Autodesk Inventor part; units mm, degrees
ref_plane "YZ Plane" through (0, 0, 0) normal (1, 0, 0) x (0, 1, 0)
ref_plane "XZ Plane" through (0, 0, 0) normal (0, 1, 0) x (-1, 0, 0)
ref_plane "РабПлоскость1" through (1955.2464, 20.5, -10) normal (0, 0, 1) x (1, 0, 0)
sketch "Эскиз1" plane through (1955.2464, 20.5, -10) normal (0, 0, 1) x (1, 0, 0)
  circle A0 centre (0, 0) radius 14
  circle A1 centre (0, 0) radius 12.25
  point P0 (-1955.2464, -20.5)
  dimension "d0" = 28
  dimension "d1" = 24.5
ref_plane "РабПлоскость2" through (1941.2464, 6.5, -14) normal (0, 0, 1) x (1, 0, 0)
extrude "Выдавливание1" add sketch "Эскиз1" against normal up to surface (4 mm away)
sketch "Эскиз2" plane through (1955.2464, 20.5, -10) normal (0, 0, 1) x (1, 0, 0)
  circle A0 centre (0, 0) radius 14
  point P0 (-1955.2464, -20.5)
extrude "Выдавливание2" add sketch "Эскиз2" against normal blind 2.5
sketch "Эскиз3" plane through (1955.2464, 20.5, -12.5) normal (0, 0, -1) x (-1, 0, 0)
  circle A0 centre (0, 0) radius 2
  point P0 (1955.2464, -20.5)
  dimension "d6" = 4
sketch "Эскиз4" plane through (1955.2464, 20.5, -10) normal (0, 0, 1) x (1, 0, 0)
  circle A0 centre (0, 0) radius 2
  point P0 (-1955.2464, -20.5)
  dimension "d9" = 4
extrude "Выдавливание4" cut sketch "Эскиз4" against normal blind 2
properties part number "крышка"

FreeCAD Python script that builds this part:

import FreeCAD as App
import Part
import Sketcher

V = App.Vector
Q = App.Units.Quantity

doc = App.newDocument("Part")
params = doc.addObject("Spreadsheet::Sheet", "Params")
for row, (alias, value) in enumerate([
    ("sketch1_diameter", "28 mm"),
    ("sketch1_diameter2", "24.5 mm"),
    ("pad1_length", "4 mm"),
    ("sketch2_diameter", "28 mm"),
    ("pad2_length", "2.5 mm"),
    ("sketch3_diameter", "4 mm"),
    ("pocket1_length", "2 mm"),
], start=1):
    params.set(f"A{row}", alias)
    params.set(f"B{row}", "=" + value)
    params.setAlias(f"B{row}", alias)

body = doc.addObject("PartDesign::Body", "Body")

sketch1 = doc.addObject("Sketcher::SketchObject", "Sketch")
body.addObject(sketch1)
sketch1.AttachmentSupport = (doc.XY_Plane, [""])
sketch1.MapMode = "FlatFace"
sketch1.AttachmentOffset = App.Placement(V(0, 0, -10), App.Rotation())
sketch1.addGeometry([
    Part.Circle(V(1955.2464, 20.5, 0), V(0, 0, 1), 14),
    Part.Circle(V(1955.2464, 20.5, 0), V(0, 0, 1), 12.25),
], False)
sketch1.addConstraint([
    Sketcher.Constraint("Coincident", 1, 3, 0, 3),
    Sketcher.Constraint("Diameter", 0, Q("28 mm")),
    Sketcher.Constraint("Diameter", 1, Q("24.5 mm")),
    Sketcher.Constraint("DistanceY", -1, 1, 0, 3, Q("20.5 mm")),
    Sketcher.Constraint("DistanceX", -1, 1, 0, 3, Q("1955.2464 mm")),
])
sketch1.setExpression("Constraints[1]", "Params.sketch1_diameter")
sketch1.setExpression("Constraints[2]", "Params.sketch1_diameter2")
pad1 = doc.addObject("PartDesign::Pad", "Pad")
body.addObject(pad1)
pad1.Profile = sketch1
pad1.setExpression("Length", "Params.pad1_length")
pad1.Reversed = True

sketch2 = doc.addObject("Sketcher::SketchObject", "Sketch001")
body.addObject(sketch2)
sketch2.AttachmentSupport = (doc.XY_Plane, [""])
sketch2.MapMode = "FlatFace"
sketch2.AttachmentOffset = App.Placement(V(0, 0, -10), App.Rotation())
sketch2.addGeometry(Part.Circle(V(1955.2464, 20.5, 0), V(0, 0, 1), 14), False)
sketch2.addConstraint([
    Sketcher.Constraint("Diameter", 0, Q("28 mm")),
    Sketcher.Constraint("DistanceY", -1, 1, 0, 3, Q("20.5 mm")),
    Sketcher.Constraint("DistanceX", -1, 1, 0, 3, Q("1955.2464 mm")),
])
sketch2.setExpression("Constraints[0]", "Params.sketch2_diameter")
pad2 = doc.addObject("PartDesign::Pad", "Pad001")
body.addObject(pad2)
pad2.Profile = sketch2
pad2.setExpression("Length", "Params.pad2_length")
pad2.Reversed = True

sketch3 = doc.addObject("Sketcher::SketchObject", "Sketch002")
body.addObject(sketch3)
sketch3.AttachmentSupport = (doc.XY_Plane, [""])
sketch3.MapMode = "FlatFace"
sketch3.AttachmentOffset = App.Placement(V(0, 0, -10), App.Rotation())
sketch3.addGeometry(Part.Circle(V(1955.2464, 20.5, 0), V(0, 0, 1), 2), False)
sketch3.addConstraint([
    Sketcher.Constraint("Diameter", 0, Q("4 mm")),
    Sketcher.Constraint("DistanceY", -1, 1, 0, 3, Q("20.5 mm")),
    Sketcher.Constraint("DistanceX", -1, 1, 0, 3, Q("1955.2464 mm")),
])
sketch3.setExpression("Constraints[0]", "Params.sketch3_diameter")
pocket1 = doc.addObject("PartDesign::Pocket", "Pocket")
body.addObject(pocket1)
pocket1.Profile = sketch3
pocket1.setExpression("Length", "Params.pocket1_length")

doc.recompute()
